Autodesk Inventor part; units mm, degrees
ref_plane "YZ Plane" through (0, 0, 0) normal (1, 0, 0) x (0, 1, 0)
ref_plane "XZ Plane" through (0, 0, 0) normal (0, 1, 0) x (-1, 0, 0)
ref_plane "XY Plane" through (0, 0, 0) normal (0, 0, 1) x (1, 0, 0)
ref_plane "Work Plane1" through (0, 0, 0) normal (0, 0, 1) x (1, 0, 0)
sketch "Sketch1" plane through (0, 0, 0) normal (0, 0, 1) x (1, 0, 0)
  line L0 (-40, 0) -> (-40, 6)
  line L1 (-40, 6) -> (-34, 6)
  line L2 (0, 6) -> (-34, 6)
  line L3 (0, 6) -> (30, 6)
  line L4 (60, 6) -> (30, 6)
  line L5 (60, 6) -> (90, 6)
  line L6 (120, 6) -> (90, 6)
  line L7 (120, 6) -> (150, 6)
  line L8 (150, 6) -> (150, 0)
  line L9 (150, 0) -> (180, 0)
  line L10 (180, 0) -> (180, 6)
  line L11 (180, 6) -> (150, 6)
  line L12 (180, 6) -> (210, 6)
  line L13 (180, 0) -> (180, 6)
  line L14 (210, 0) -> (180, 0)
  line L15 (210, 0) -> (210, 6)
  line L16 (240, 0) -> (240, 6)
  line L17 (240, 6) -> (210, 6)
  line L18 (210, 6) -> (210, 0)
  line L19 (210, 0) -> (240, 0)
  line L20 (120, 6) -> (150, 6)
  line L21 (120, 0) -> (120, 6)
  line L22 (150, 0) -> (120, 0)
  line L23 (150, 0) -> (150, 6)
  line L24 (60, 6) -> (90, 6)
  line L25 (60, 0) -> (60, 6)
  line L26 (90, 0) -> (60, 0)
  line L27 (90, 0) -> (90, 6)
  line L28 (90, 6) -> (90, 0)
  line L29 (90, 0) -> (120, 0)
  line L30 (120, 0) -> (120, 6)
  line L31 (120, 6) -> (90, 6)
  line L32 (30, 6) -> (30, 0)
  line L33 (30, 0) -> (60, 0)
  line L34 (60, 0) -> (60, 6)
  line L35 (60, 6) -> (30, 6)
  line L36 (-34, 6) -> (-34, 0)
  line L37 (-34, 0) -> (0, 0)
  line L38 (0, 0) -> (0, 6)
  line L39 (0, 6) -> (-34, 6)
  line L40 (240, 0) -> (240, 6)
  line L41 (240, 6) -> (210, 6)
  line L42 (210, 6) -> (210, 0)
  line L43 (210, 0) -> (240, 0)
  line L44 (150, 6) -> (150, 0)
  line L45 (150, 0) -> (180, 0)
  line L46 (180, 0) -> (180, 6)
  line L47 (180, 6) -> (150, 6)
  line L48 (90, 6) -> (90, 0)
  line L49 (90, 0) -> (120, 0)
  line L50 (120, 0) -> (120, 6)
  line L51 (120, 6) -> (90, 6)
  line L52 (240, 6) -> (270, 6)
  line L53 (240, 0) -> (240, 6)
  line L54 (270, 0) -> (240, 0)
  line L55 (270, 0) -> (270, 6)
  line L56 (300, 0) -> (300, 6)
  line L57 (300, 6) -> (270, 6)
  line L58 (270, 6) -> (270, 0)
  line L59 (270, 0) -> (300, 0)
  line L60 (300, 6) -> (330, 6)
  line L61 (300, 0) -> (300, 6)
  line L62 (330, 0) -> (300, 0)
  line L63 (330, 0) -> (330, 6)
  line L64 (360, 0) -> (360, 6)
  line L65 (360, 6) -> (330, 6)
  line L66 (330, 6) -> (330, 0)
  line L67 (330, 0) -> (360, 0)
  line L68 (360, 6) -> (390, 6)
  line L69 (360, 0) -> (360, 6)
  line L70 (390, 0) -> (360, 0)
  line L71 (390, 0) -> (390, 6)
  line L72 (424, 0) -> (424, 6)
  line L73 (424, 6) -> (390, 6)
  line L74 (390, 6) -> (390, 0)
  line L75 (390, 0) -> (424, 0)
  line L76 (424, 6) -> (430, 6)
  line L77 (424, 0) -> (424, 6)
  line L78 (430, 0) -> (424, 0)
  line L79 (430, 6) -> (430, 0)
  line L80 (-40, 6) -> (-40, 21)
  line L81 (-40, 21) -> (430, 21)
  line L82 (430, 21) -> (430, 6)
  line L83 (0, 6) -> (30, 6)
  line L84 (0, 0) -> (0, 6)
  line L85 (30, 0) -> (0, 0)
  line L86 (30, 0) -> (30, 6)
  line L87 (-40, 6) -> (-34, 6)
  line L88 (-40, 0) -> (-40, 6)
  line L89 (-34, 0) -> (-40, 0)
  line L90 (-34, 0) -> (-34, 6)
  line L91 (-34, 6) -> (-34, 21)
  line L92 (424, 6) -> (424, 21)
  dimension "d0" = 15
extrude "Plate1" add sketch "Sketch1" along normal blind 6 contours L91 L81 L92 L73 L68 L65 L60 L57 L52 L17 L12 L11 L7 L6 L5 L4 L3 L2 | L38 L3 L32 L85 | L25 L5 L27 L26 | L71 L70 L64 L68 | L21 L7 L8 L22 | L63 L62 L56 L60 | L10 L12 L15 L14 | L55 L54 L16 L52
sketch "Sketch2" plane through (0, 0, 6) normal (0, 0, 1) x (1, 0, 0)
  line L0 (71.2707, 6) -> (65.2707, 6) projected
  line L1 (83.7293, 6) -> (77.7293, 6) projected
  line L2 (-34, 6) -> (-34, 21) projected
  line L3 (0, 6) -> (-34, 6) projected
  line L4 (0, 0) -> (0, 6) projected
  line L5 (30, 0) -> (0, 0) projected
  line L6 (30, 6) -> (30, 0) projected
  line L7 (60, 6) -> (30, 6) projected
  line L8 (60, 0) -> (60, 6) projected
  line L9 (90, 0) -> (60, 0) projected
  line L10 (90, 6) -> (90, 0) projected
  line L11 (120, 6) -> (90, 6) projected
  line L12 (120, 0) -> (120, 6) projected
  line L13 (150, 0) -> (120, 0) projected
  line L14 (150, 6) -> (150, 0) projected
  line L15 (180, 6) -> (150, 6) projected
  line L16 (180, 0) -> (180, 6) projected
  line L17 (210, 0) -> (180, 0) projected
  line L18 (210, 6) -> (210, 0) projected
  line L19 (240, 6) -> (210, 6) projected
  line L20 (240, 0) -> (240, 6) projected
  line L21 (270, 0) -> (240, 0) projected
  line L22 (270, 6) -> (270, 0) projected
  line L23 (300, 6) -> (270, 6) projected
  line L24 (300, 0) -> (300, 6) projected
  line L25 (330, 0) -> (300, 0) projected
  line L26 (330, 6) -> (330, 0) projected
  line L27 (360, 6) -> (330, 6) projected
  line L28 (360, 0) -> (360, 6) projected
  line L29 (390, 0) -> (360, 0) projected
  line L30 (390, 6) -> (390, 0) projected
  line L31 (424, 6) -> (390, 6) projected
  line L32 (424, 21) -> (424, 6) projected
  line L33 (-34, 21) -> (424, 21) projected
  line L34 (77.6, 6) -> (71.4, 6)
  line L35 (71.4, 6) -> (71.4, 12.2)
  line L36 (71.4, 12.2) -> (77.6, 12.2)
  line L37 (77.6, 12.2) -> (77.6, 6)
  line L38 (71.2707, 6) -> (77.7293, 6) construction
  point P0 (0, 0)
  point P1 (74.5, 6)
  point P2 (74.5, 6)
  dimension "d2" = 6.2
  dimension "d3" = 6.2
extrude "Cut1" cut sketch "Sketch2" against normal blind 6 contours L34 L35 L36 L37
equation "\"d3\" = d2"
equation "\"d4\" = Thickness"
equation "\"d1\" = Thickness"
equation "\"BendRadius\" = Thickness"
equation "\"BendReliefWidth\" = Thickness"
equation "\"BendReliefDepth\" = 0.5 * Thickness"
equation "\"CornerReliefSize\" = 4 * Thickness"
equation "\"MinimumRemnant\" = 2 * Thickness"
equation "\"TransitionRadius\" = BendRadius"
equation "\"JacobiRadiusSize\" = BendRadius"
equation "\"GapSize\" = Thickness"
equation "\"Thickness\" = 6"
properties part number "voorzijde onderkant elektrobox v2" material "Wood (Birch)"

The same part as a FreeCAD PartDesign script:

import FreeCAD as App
import Part
import Sketcher

V = App.Vector
Q = App.Units.Quantity


def add_polygon(sketch, points):
    """Adds a closed chain of lines whose ends are joined by coincident constraints."""
    first, n = sketch.GeometryCount, len(points)
    for a, b in zip(points, points[1:] + points[:1]):
        sketch.addGeometry(Part.LineSegment(App.Vector(*a, 0), App.Vector(*b, 0)), False)
    for i in range(n):
        sketch.addConstraint(Sketcher.Constraint("Coincident", first + i, 2, first + (i + 1) % n, 1))

doc = App.newDocument("Part")
body = doc.addObject("PartDesign::Body", "Body")

sketch1 = body.newObject("Sketcher::SketchObject", "Sketch")
sketch1.AttachmentSupport = (doc.getObject("XY_Plane"), [""])
sketch1.MapMode = "FlatFace"
add_polygon(sketch1, [(-34, 21), (-34, 6), (0, 6), (0, 0), (30, 0), (30, 6), (60, 6), (60, 0), (90, 0), (90, 6), (120, 6), (120, 0), (150, 0), (150, 6), (180, 6), (180, 0), (210, 0), (210, 6), (240, 6), (240, 0), (270, 0), (270, 6), (300, 6), (300, 0), (330, 0), (330, 6), (360, 6), (360, 0), (390, 0), (390, 6), (424, 6), (424, 21)])
sketch1.addConstraint([
    Sketcher.Constraint("Vertical", 0),
    Sketcher.Constraint("Horizontal", 1),
    Sketcher.Constraint("Vertical", 2),
    Sketcher.Constraint("Horizontal", 3),
    Sketcher.Constraint("Vertical", 4),
    Sketcher.Constraint("Horizontal", 5),
    Sketcher.Constraint("Vertical", 6),
    Sketcher.Constraint("Horizontal", 7),
    Sketcher.Constraint("Vertical", 8),
    Sketcher.Constraint("Horizontal", 9),
    Sketcher.Constraint("Vertical", 10),
    Sketcher.Constraint("Horizontal", 11),
    Sketcher.Constraint("Vertical", 12),
    Sketcher.Constraint("Horizontal", 13),
    Sketcher.Constraint("Vertical", 14),
    Sketcher.Constraint("Horizontal", 15),
    Sketcher.Constraint("Vertical", 16),
    Sketcher.Constraint("Horizontal", 17),
    Sketcher.Constraint("Vertical", 18),
    Sketcher.Constraint("Horizontal", 19),
    Sketcher.Constraint("Vertical", 20),
    Sketcher.Constraint("Horizontal", 21),
    Sketcher.Constraint("Vertical", 22),
    Sketcher.Constraint("Horizontal", 23),
    Sketcher.Constraint("Vertical", 24),
    Sketcher.Constraint("Horizontal", 25),
    Sketcher.Constraint("Vertical", 26),
    Sketcher.Constraint("Horizontal", 27),
    Sketcher.Constraint("Vertical", 28),
    Sketcher.Constraint("Horizontal", 29),
    Sketcher.Constraint("Vertical", 30),
    Sketcher.Constraint("Horizontal", 31),
    Sketcher.Constraint("Coincident", 2, 2, -1, 1),
    Sketcher.Constraint("PointOnObject", 6, 2, -1),
    Sketcher.Constraint("PointOnObject", 10, 2, -1),
    Sketcher.Constraint("PointOnObject", 14, 2, -1),
    Sketcher.Constraint("PointOnObject", 18, 2, -1),
    Sketcher.Constraint("PointOnObject", 22, 2, -1),
    Sketcher.Constraint("PointOnObject", 26, 2, -1),
    Sketcher.Constraint("Horizontal", 1, 2, 4, 2),
    Sketcher.Constraint("Horizontal", 5, 2, 8, 2),
    Sketcher.Constraint("Horizontal", 9, 2, 12, 2),
    Sketcher.Constraint("Horizontal", 13, 2, 16, 2),
    Sketcher.Constraint("Horizontal", 17, 2, 20, 2),
    Sketcher.Constraint("Horizontal", 21, 2, 24, 2),
    Sketcher.Constraint("Horizontal", 25, 2, 28, 2),
    Sketcher.Constraint("Equal", 3, 5),
    Sketcher.Constraint("Equal", 5, 7),
    Sketcher.Constraint("Equal", 7, 9),
    Sketcher.Constraint("Equal", 9, 11),
    Sketcher.Constraint("Equal", 11, 13),
    Sketcher.Constraint("Equal", 13, 15),
    Sketcher.Constraint("Equal", 15, 17),
    Sketcher.Constraint("Equal", 17, 19),
    Sketcher.Constraint("Equal", 19, 21),
    Sketcher.Constraint("Equal", 21, 23),
    Sketcher.Constraint("Equal", 23, 25),
    Sketcher.Constraint("Equal", 25, 27),
    Sketcher.Constraint("Equal", 1, 29),
    Sketcher.Constraint("DistanceY", 0, 2, 0, 1, Q("15 mm")),
    Sketcher.Constraint("DistanceX", 1, 1, 1, 2, Q("34 mm")),
    Sketcher.Constraint("DistanceX", 3, 1, 3, 2, Q("30 mm")),
    Sketcher.Constraint("DistanceY", 2, 2, 2, 1, Q("6 mm")),
])
pad1 = body.newObject("PartDesign::Pad", "Pad")
pad1.Profile = sketch1
pad1.Length = 6

sketch2 = body.newObject("Sketcher::SketchObject", "Sketch001")
sketch2.AttachmentSupport = (doc.getObject("XY_Plane"), [""])
sketch2.MapMode = "FlatFace"
sketch2.AttachmentOffset = App.Placement(V(0, 0, 6), App.Rotation())
add_polygon(sketch2, [(71.4, 6), (77.6, 6), (77.6, 12.2), (71.4, 12.2)])
sketch2.addConstraint([
    Sketcher.Constraint("Horizontal", 0),
    Sketcher.Constraint("Vertical", 1),
    Sketcher.Constraint("Horizontal", 2),
    Sketcher.Constraint("Vertical", 3),
    Sketcher.Constraint("Equal", 2, 1),
    Sketcher.Constraint("DistanceX", 0, 1, 0, 2, Q("6.2 mm")),
    Sketcher.Constraint("DistanceY", -1, 1, 0, 2, Q("6 mm")),
    Sketcher.Constraint("DistanceX", -1, 1, 0, 2, Q("77.6 mm")),
])
pocket1 = body.newObject("PartDesign::Pocket", "Pocket")
pocket1.Profile = sketch2
pocket1.Length = 6

doc.recompute()
